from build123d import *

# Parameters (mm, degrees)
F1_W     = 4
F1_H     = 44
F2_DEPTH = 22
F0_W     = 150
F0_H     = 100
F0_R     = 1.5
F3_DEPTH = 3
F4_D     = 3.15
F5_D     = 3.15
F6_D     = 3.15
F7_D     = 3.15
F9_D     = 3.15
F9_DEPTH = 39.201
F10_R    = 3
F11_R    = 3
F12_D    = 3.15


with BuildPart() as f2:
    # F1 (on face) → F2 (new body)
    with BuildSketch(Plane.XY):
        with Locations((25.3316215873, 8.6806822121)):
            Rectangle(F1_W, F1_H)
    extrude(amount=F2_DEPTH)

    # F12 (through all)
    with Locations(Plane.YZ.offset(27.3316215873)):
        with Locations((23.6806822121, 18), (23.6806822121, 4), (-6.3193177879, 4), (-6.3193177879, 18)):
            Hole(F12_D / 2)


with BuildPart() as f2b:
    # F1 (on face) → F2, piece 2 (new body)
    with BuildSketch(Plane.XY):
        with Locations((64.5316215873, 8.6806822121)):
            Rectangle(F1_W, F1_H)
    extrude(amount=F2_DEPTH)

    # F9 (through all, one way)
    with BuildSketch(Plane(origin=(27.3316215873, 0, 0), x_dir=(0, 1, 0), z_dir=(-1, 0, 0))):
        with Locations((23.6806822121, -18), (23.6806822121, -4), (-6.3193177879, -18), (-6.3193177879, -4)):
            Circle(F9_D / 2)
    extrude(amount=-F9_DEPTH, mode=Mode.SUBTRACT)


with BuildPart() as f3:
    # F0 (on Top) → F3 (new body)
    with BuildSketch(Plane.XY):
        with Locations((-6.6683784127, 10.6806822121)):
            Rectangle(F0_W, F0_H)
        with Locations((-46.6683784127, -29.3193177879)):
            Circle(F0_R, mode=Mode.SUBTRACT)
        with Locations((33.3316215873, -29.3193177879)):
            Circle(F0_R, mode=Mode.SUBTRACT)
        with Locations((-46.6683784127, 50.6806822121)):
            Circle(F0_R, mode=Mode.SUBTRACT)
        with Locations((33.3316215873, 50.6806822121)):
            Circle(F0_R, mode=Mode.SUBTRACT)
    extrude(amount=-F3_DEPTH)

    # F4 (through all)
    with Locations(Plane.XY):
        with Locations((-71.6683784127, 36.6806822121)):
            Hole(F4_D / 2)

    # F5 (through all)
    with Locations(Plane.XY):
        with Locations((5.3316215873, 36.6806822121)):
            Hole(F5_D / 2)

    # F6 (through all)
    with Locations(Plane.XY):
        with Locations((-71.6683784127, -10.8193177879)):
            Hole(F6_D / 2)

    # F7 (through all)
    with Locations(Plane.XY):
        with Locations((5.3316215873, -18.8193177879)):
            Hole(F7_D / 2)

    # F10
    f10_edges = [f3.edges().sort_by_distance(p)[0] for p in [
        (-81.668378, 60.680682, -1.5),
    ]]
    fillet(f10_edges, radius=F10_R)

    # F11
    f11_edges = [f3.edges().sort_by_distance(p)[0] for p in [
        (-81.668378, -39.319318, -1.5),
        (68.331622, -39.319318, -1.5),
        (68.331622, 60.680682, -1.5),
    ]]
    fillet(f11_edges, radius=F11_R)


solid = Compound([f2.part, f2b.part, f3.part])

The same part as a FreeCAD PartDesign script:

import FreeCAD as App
import Part
import Sketcher


def edges_at(feature, points):
    """Names of the edges that pass closest to the given points."""
    edges = feature.Shape.Edges
    near = lambda p: min(range(len(edges)), key=lambda i: edges[i].distToShape(Part.Vertex(*p))[0])
    return sorted({f"Edge{near(p) + 1}" for p in points})


def add_polygon(sketch, points):
    """Adds a closed chain of lines whose ends are joined by coincident constraints."""
    first, n = sketch.GeometryCount, len(points)
    for a, b in zip(points, points[1:] + points[:1]):
        sketch.addGeometry(Part.LineSegment(App.Vector(*a, 0), App.Vector(*b, 0)), False)
    for i in range(n):
        sketch.addConstraint(Sketcher.Constraint("Coincident", first + i, 2, first + (i + 1) % n, 1))

doc = App.newDocument("Part")
body = doc.addObject("PartDesign::Body", "Body")

# Sketch on XY plane
sketch1 = body.newObject("Sketcher::SketchObject", "Sketch")
sketch1.AttachmentSupport = (doc.getObject("XY_Plane"), [""])
sketch1.MapMode = "FlatFace"
add_polygon(sketch1, [(23.3, 30.7), (23.3, -13.3), (27.3, -13.3), (27.3, 30.7)])  # lines 0-3
sketch1.addConstraint(Sketcher.Constraint("Vertical", 0))
sketch1.addConstraint(Sketcher.Constraint("Horizontal", 1))
sketch1.addConstraint(Sketcher.Constraint("Vertical", 2))
sketch1.addConstraint(Sketcher.Constraint("Horizontal", 3))
sketch1.addConstraint(Sketcher.Constraint("DistanceX", 1, 1, 1, 2, 4.0))
sketch1.addConstraint(Sketcher.Constraint("DistanceY", 0, 2, 0, 1, 44.0))
sketch1.addConstraint(Sketcher.Constraint("DistanceX", -1, 1, 0, 2, 23.331622))
sketch1.addConstraint(Sketcher.Constraint("DistanceY", 0, 2, -1, 1, 13.319318))
pad1 = body.newObject("PartDesign::Pad", "Pad")
pad1.Profile = sketch1
pad1.Length = 22

# Sketch on YZ plane
sketch2 = body.newObject("Sketcher::SketchObject", "Sketch001")
sketch2.AttachmentSupport = (doc.getObject("YZ_Plane"), [""])
sketch2.MapMode = "FlatFace"
sketch2.AttachmentOffset = App.Placement(App.Vector(0, 0, 27.331622), App.Rotation())
sketch2.addGeometry(Part.Circle(App.Vector(23.7, 18, 0), App.Vector(0, 0, 1), 1.6), False)
sketch2.addGeometry(Part.Circle(App.Vector(23.7, 4, 0), App.Vector(0, 0, 1), 1.6), False)
sketch2.addGeometry(Part.Circle(App.Vector(-6.3, 4, 0), App.Vector(0, 0, 1), 1.6), False)
sketch2.addGeometry(Part.Circle(App.Vector(-6.3, 18, 0), App.Vector(0, 0, 1), 1.6), False)
sketch2.addConstraint(Sketcher.Constraint("Equal", 0, 1))
sketch2.addConstraint(Sketcher.Constraint("Equal", 1, 2))
sketch2.addConstraint(Sketcher.Constraint("Equal", 2, 3))
sketch2.addConstraint(Sketcher.Constraint("Horizontal", 1, 3, 2, 3))
sketch2.addConstraint(Sketcher.Constraint("Horizontal", 0, 3, 3, 3))
sketch2.addConstraint(Sketcher.Constraint("Vertical", 0, 3, 1, 3))
sketch2.addConstraint(Sketcher.Constraint("Vertical", 2, 3, 3, 3))
sketch2.addConstraint(Sketcher.Constraint("Diameter", 0, 3.15))
sketch2.addConstraint(Sketcher.Constraint("DistanceY", -1, 1, 0, 3, 18.0))
sketch2.addConstraint(Sketcher.Constraint("DistanceY", -1, 1, 1, 3, 4.0))
sketch2.addConstraint(Sketcher.Constraint("DistanceX", 2, 3, 1, 3, 30.0))
sketch2.addConstraint(Sketcher.Constraint("DistanceX", -1, 1, 0, 3, 23.680682))
doc.recompute()
hole = body.newObject("PartDesign::Hole", "Hole")
hole.Profile = sketch2
hole.ThreadType = "None"
hole.Diameter = 3.15
hole.DepthType = "ThroughAll"
body2 = doc.addObject("PartDesign::Body", "Body001")

# Sketch on XY plane
sketch3 = body2.newObject("Sketcher::SketchObject", "Sketch002")
sketch3.AttachmentSupport = (doc.getObject("XY_Plane001"), [""])
sketch3.MapMode = "FlatFace"
add_polygon(sketch3, [(62.5, 30.7), (62.5, -13.3), (66.5, -13.3), (66.5, 30.7)])  # lines 0-3
sketch3.addConstraint(Sketcher.Constraint("Vertical", 0))
sketch3.addConstraint(Sketcher.Constraint("Horizontal", 1))
sketch3.addConstraint(Sketcher.Constraint("Vertical", 2))
sketch3.addConstraint(Sketcher.Constraint("Horizontal", 3))
sketch3.addConstraint(Sketcher.Constraint("DistanceX", 1, 1, 1, 2, 4.0))
sketch3.addConstraint(Sketcher.Constraint("DistanceY", 0, 2, 0, 1, 44.0))
sketch3.addConstraint(Sketcher.Constraint("DistanceX", -1, 1, 0, 2, 62.531622))
sketch3.addConstraint(Sketcher.Constraint("DistanceY", 0, 2, -1, 1, 13.319318))
pad2 = body2.newObject("PartDesign::Pad", "Pad001")
pad2.Profile = sketch3
pad2.Length = 22

# Sketch on YZ plane
sketch4 = body2.newObject("Sketcher::SketchObject", "Sketch003")
sketch4.AttachmentSupport = (doc.getObject("YZ_Plane001"), [""])
sketch4.MapMode = "FlatFace"
sketch4.AttachmentOffset = App.Placement(App.Vector(0, 0, 27.331622), App.Rotation())
sketch4.addGeometry(Part.Circle(App.Vector(-6.3, 4, 0), App.Vector(0, 0, 1), 1.6), False)
sketch4.addGeometry(Part.Circle(App.Vector(23.7, 18, 0), App.Vector(0, 0, 1), 1.6), False)
sketch4.addGeometry(Part.Circle(App.Vector(23.7, 4, 0), App.Vector(0, 0, 1), 1.6), False)
sketch4.addGeometry(Part.Circle(App.Vector(-6.3, 18, 0), App.Vector(0, 0, 1), 1.6), False)
sketch4.addConstraint(Sketcher.Constraint("Equal", 0, 1))
sketch4.addConstraint(Sketcher.Constraint("Equal", 1, 2))
sketch4.addConstraint(Sketcher.Constraint("Equal", 2, 3))
sketch4.addConstraint(Sketcher.Constraint("Horizontal", 0, 3, 2, 3))
sketch4.addConstraint(Sketcher.Constraint("Horizontal", 1, 3, 3, 3))
sketch4.addConstraint(Sketcher.Constraint("Vertical", 1, 3, 2, 3))
sketch4.addConstraint(Sketcher.Constraint("Vertical", 0, 3, 3, 3))
sketch4.addConstraint(Sketcher.Constraint("Diameter", 0, 3.15))
sketch4.addConstraint(Sketcher.Constraint("DistanceY", -1, 1, 0, 3, 4.0))
sketch4.addConstraint(Sketcher.Constraint("DistanceY", -1, 1, 1, 3, 18.0))
sketch4.addConstraint(Sketcher.Constraint("DistanceX", 0, 3, 1, 3, 30.0))
sketch4.addConstraint(Sketcher.Constraint("DistanceX", 0, 3, -1, 1, 6.319318))
pocket1 = body2.newObject("PartDesign::Pocket", "Pocket")
pocket1.Profile = sketch4
pocket1.Type = "ThroughAll"
pocket1.Reversed = True
body3 = doc.addObject("PartDesign::Body", "Body002")

# Sketch on XY plane
sketch5 = body3.newObject("Sketcher::SketchObject", "Sketch004")
sketch5.AttachmentSupport = (doc.getObject("XY_Plane002"), [""])
sketch5.MapMode = "FlatFace"
add_polygon(sketch5, [(-81.7, 60.7), (-81.7, -39.3), (68.3, -39.3), (68.3, 60.7)])  # lines 0-3
sketch5.addGeometry(Part.Circle(App.Vector(-46.7, -29.3, 0), App.Vector(0, 0, 1), 1.5), False)  # 4
sketch5.addGeometry(Part.Circle(App.Vector(33.3, -29.3, 0), App.Vector(0, 0, 1), 1.5), False)  # 5
sketch5.addGeometry(Part.Circle(App.Vector(-46.7, 50.7, 0), App.Vector(0, 0, 1), 1.5), False)  # 6
sketch5.addGeometry(Part.Circle(App.Vector(33.3, 50.7, 0), App.Vector(0, 0, 1), 1.5), False)  # 7
sketch5.addConstraint(Sketcher.Constraint("Vertical", 0))
sketch5.addConstraint(Sketcher.Constraint("Horizontal", 1))
sketch5.addConstraint(Sketcher.Constraint("Vertical", 2))
sketch5.addConstraint(Sketcher.Constraint("Horizontal", 3))
sketch5.addConstraint(Sketcher.Constraint("Equal", 4, 5))
sketch5.addConstraint(Sketcher.Constraint("Equal", 5, 6))
sketch5.addConstraint(Sketcher.Constraint("Equal", 6, 7))
sketch5.addConstraint(Sketcher.Constraint("Horizontal", 4, 3, 5, 3))
sketch5.addConstraint(Sketcher.Constraint("Horizontal", 6, 3, 7, 3))
sketch5.addConstraint(Sketcher.Constraint("Vertical", 4, 3, 6, 3))
sketch5.addConstraint(Sketcher.Constraint("Vertical", 5, 3, 7, 3))
sketch5.addConstraint(Sketcher.Constraint("Diameter", 4, 3.0))
sketch5.addConstraint(Sketcher.Constraint("DistanceX", 1, 1, 1, 2, 150.0))
sketch5.addConstraint(Sketcher.Constraint("DistanceY", 0, 2, 0, 1, 100.0))
sketch5.addConstraint(Sketcher.Constraint("DistanceX", 4, 3, 5, 3, 80.0))
sketch5.addConstraint(Sketcher.Constraint("DistanceY", 4, 3, 6, 3, 80.0))
sketch5.addConstraint(Sketcher.Constraint("DistanceX", 0, 2, 4, 3, 35.0))
sketch5.addConstraint(Sketcher.Constraint("DistanceY", 0, 2, 4, 3, 10.0))
sketch5.addConstraint(Sketcher.Constraint("DistanceX", 4, 3, -1, 1, 46.668378))
sketch5.addConstraint(Sketcher.Constraint("DistanceY", 4, 3, -1, 1, 29.319318))
pad3 = body3.newObject("PartDesign::Pad", "Pad002")
pad3.Profile = sketch5
pad3.Length = 3
pad3.Reversed = True

# Sketch on XY plane
sketch6 = body3.newObject("Sketcher::SketchObject", "Sketch005")
sketch6.AttachmentSupport = (doc.getObject("XY_Plane002"), [""])
sketch6.MapMode = "FlatFace"
sketch6.addGeometry(Part.Circle(App.Vector(-71.7, 36.7, 0), App.Vector(0, 0, 1), 1.6), False)
sketch6.addConstraint(Sketcher.Constraint("Diameter", 0, 3.15))
sketch6.addConstraint(Sketcher.Constraint("DistanceX", 0, 3, -1, 1, 71.668378))
sketch6.addConstraint(Sketcher.Constraint("DistanceY", -1, 1, 0, 3, 36.680682))
doc.recompute()
hole2 = body3.newObject("PartDesign::Hole", "Hole001")
hole2.Profile = sketch6
hole2.ThreadType = "None"
hole2.Diameter = 3.15
hole2.DepthType = "ThroughAll"

# Sketch on XY plane
sketch7 = body3.newObject("Sketcher::SketchObject", "Sketch006")
sketch7.AttachmentSupport = (doc.getObject("XY_Plane002"), [""])
sketch7.MapMode = "FlatFace"
sketch7.addGeometry(Part.Circle(App.Vector(5.3, 36.7, 0), App.Vector(0, 0, 1), 1.6), False)
sketch7.addConstraint(Sketcher.Constraint("Diameter", 0, 3.15))
sketch7.addConstraint(Sketcher.Constraint("DistanceX", -1, 1, 0, 3, 5.331622))
sketch7.addConstraint(Sketcher.Constraint("DistanceY", -1, 1, 0, 3, 36.680682))
doc.recompute()
hole3 = body3.newObject("PartDesign::Hole", "Hole002")
hole3.Profile = sketch7
hole3.ThreadType = "None"
hole3.Diameter = 3.15
hole3.DepthType = "ThroughAll"

# Sketch on XY plane
sketch8 = body3.newObject("Sketcher::SketchObject", "Sketch007")
sketch8.AttachmentSupport = (doc.getObject("XY_Plane002"), [""])
sketch8.MapMode = "FlatFace"
sketch8.addGeometry(Part.Circle(App.Vector(-71.7, -10.8, 0), App.Vector(0, 0, 1), 1.6), False)
sketch8.addConstraint(Sketcher.Constraint("Diameter", 0, 3.15))
sketch8.addConstraint(Sketcher.Constraint("DistanceX", 0, 3, -1, 1, 71.668378))
sketch8.addConstraint(Sketcher.Constraint("DistanceY", 0, 3, -1, 1, 10.819318))
doc.recompute()
hole4 = body3.newObject("PartDesign::Hole", "Hole003")
hole4.Profile = sketch8
hole4.ThreadType = "None"
hole4.Diameter = 3.15
hole4.DepthType = "ThroughAll"

# Sketch on XY plane
sketch9 = body3.newObject("Sketcher::SketchObject", "Sketch008")
sketch9.AttachmentSupport = (doc.getObject("XY_Plane002"), [""])
sketch9.MapMode = "FlatFace"
sketch9.addGeometry(Part.Circle(App.Vector(5.3, -18.8, 0), App.Vector(0, 0, 1), 1.6), False)
sketch9.addConstraint(Sketcher.Constraint("Diameter", 0, 3.15))
sketch9.addConstraint(Sketcher.Constraint("DistanceX", -1, 1, 0, 3, 5.331622))
sketch9.addConstraint(Sketcher.Constraint("DistanceY", 0, 3, -1, 1, 18.819318))
doc.recompute()
hole5 = body3.newObject("PartDesign::Hole", "Hole004")
hole5.Profile = sketch9
hole5.ThreadType = "None"
hole5.Diameter = 3.15
hole5.DepthType = "ThroughAll"
doc.recompute()

fillet = body3.newObject("PartDesign::Fillet", "Fillet")
fillet.Base = (hole5, edges_at(hole5, [(-81.668, 60.681, -1.5)]))
fillet.Radius = 3
doc.recompute()

fillet2 = body3.newObject("PartDesign::Fillet", "Fillet001")
fillet2.Base = (fillet, edges_at(fillet, [(-81.668, -39.319, -1.5), (68.332, -39.319, -1.5), (68.332, 60.681, -1.5)]))
fillet2.Radius = 3

doc.recompute()
